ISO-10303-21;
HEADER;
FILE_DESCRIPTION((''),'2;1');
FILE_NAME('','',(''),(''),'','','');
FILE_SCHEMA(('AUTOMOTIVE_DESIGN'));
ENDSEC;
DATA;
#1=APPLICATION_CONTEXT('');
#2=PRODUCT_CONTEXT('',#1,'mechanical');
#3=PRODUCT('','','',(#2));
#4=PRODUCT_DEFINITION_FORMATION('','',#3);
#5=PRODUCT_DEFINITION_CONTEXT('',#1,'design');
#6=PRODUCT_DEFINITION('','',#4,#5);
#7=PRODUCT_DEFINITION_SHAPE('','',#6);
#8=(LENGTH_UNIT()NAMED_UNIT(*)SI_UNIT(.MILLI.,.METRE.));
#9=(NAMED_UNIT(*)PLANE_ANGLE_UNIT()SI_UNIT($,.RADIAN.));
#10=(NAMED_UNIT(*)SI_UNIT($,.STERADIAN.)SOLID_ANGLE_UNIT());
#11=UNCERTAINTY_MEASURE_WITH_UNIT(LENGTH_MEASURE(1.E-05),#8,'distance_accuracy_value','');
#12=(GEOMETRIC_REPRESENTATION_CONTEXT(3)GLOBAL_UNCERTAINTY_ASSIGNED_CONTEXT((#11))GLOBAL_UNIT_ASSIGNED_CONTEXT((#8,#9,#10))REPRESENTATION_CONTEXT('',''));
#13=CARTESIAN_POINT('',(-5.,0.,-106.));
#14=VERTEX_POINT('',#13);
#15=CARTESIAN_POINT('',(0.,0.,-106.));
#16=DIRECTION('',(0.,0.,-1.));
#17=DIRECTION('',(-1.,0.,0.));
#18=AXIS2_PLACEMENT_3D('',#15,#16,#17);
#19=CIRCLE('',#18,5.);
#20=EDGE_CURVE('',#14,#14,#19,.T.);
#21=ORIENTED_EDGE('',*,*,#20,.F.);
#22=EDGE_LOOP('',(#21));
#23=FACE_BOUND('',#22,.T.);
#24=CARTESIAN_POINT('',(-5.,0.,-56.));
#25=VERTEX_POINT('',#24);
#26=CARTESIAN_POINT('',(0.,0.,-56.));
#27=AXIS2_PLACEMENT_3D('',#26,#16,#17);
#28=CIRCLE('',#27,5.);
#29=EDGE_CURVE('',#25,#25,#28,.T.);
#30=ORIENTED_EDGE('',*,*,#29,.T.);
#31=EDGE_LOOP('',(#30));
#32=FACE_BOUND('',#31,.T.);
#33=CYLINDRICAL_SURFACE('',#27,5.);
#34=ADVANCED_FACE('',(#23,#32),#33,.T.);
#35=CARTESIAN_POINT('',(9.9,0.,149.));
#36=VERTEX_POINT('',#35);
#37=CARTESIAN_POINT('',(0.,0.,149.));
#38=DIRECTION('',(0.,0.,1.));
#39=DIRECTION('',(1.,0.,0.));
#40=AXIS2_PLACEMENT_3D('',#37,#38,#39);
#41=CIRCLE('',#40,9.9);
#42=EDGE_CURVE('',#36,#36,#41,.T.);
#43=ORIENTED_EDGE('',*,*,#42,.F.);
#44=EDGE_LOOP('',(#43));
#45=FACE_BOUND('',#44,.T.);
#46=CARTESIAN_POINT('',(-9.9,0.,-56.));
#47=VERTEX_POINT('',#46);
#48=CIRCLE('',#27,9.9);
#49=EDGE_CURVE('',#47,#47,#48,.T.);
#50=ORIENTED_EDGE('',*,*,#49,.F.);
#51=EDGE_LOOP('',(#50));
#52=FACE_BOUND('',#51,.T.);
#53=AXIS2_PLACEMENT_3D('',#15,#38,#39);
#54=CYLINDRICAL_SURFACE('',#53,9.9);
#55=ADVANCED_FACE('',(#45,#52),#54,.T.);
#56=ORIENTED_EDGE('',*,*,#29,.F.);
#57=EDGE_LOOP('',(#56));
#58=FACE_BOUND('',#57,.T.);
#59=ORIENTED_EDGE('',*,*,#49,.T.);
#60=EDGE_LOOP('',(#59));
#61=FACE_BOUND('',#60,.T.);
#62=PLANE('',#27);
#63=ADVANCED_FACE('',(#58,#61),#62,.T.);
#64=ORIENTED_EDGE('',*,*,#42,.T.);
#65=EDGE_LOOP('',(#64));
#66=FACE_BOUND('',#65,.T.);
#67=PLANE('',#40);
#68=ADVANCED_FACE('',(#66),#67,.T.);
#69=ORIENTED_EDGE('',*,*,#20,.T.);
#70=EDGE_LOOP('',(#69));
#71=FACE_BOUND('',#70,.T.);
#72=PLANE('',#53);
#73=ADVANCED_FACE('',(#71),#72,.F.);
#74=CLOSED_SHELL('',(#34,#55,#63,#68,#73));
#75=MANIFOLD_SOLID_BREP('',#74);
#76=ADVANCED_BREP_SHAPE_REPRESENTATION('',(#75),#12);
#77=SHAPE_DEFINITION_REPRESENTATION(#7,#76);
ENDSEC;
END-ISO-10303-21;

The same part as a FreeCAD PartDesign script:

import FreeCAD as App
import Part
import Sketcher

V = App.Vector
Q = App.Units.Quantity

doc = App.newDocument("Part")
body = doc.addObject("PartDesign::Body", "Body")

# Sketch on XY plane
sketch1 = body.newObject("Sketcher::SketchObject", "Sketch")
sketch1.AttachmentSupport = (doc.getObject("XY_Plane"), [""])
sketch1.MapMode = "FlatFace"
sketch1.addGeometry(Part.Circle(V(0, 0, 0), V(0, 0, 1), 10), False)
sketch1.addConstraint([
    Sketcher.Constraint("Coincident", 0, 3, -1, 1),
    Sketcher.Constraint("Diameter", 0, Q("19.8 mm")),
])
pad1 = body.newObject("PartDesign::Pad", "Pad")
pad1.Profile = sketch1
pad1.Type = "TwoLengths"
pad1.Length = 149
pad1.Length2 = 106

# Sketch on XY plane
sketch2 = body.newObject("Sketcher::SketchObject", "Sketch001")
sketch2.AttachmentSupport = (doc.getObject("XY_Plane"), [""])
sketch2.MapMode = "FlatFace"
sketch2.AttachmentOffset = App.Placement(V(0, 0, -106), App.Rotation())
sketch2.addGeometry([
    Part.Circle(V(0, 0, 0), V(0, 0, 1), 10),
    Part.Circle(V(0, 0, 0), V(0, 0, 1), 5),
], False)
sketch2.addConstraint([
    Sketcher.Constraint("Coincident", 0, 3, -1, 1),
    Sketcher.Constraint("Coincident", 1, 3, -1, 1),
    Sketcher.Constraint("Diameter", 1, Q("10 mm")),
    Sketcher.Constraint("Diameter", 0, Q("19.8 mm")),
])
pocket1 = body.newObject("PartDesign::Pocket", "Pocket")
pocket1.Profile = sketch2
pocket1.Length = 50
pocket1.Reversed = True

doc.recompute()
